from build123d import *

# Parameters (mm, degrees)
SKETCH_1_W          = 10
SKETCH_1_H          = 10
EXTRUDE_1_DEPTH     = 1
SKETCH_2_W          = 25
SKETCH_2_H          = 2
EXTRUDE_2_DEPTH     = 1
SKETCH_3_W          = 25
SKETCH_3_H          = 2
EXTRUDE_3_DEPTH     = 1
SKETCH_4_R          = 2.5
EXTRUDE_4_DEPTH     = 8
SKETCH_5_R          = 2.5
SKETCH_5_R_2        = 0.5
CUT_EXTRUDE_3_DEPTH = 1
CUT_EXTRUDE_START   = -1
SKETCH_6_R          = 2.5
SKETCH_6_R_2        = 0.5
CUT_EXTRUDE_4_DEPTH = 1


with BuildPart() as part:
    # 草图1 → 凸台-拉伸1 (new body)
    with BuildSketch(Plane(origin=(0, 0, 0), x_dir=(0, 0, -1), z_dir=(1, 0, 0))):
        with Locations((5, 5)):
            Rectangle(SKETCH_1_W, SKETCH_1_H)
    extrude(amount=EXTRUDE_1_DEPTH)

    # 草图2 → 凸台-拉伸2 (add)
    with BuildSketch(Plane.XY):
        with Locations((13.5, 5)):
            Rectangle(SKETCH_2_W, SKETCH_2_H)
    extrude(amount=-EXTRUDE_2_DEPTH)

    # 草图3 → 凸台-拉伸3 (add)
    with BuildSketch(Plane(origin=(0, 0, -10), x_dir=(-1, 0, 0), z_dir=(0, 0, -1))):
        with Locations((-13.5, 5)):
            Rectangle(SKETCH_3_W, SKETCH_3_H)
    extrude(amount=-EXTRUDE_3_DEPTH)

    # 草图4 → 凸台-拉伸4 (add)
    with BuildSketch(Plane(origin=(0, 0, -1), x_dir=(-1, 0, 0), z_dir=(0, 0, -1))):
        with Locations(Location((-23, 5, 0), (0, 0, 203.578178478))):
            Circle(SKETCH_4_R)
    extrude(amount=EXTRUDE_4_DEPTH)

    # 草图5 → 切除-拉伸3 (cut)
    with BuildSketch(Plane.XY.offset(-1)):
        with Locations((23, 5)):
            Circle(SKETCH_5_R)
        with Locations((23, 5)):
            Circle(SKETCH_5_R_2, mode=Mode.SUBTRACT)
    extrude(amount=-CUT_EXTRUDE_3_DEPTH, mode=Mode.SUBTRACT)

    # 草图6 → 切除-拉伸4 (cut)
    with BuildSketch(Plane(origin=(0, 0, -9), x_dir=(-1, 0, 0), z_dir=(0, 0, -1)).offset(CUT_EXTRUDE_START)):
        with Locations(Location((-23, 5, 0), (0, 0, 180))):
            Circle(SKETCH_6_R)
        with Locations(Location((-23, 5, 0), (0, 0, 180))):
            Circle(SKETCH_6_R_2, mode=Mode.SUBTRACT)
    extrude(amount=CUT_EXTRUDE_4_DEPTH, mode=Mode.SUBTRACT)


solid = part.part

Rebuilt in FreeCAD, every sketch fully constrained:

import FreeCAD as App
import Part
import Sketcher

V = App.Vector
Q = App.Units.Quantity

doc = App.newDocument("Part")
params = doc.addObject("Spreadsheet::Sheet", "Params")
for row, (alias, value) in enumerate([
    ("sketch1_width", "10 mm"),
    ("pad1_length", "1 mm"),
    ("sketch2_width", "25 mm"),
    ("sketch2_height", "2 mm"),
    ("pad2_length", "1 mm"),
    ("sketch3_width", "25 mm"),
    ("sketch3_height", "2 mm"),
    ("pad3_length", "1 mm"),
    ("sketch4_diameter", "5 mm"),
    ("pad4_length", "8 mm"),
    ("sketch5_diameter", "5 mm"),
    ("sketch5_diameter2", "1 mm"),
    ("pocket1_length", "1 mm"),
    ("sketch6_diameter", "5 mm"),
    ("sketch6_diameter2", "1 mm"),
    ("pocket2_length", "1 mm"),
], start=1):
    params.set(f"A{row}", alias)
    params.set(f"B{row}", "=" + value)
    params.setAlias(f"B{row}", alias)

body = doc.addObject("PartDesign::Body", "Body")

sketch1 = doc.addObject("Sketcher::SketchObject", "Sketch")
body.addObject(sketch1)
sketch1.AttachmentSupport = (doc.YZ_Plane, [""])
sketch1.MapMode = "FlatFace"
sketch1.addGeometry([
    Part.LineSegment(V(10, 0, 0), V(0, 0, 0)),
    Part.LineSegment(V(0, 0, 0), V(0, -10, 0)),
    Part.LineSegment(V(0, -10, 0), V(10, -10, 0)),
    Part.LineSegment(V(10, -10, 0), V(10, 0, 0)),
], False)
sketch1.addConstraint([
    Sketcher.Constraint("Coincident", 0, 2, 1, 1),
    Sketcher.Constraint("Coincident", 1, 2, 2, 1),
    Sketcher.Constraint("Coincident", 2, 2, 3, 1),
    Sketcher.Constraint("Coincident", 3, 2, 0, 1),
    Sketcher.Constraint("Horizontal", 0),
    Sketcher.Constraint("Vertical", 1),
    Sketcher.Constraint("Horizontal", 2),
    Sketcher.Constraint("Vertical", 3),
    Sketcher.Constraint("Coincident", 0, 2, -1, 1),
    Sketcher.Constraint("Equal", 2, 1),
    Sketcher.Constraint("DistanceX", 0, 2, 0, 1, Q("10 mm")),
])
sketch1.setExpression("Constraints[10]", "Params.sketch1_width")
pad1 = doc.addObject("PartDesign::Pad", "Pad")
body.addObject(pad1)
pad1.Profile = sketch1
pad1.setExpression("Length", "Params.pad1_length")

sketch2 = doc.addObject("Sketcher::SketchObject", "Sketch001")
body.addObject(sketch2)
sketch2.AttachmentSupport = (doc.XY_Plane, [""])
sketch2.MapMode = "FlatFace"
sketch2.addGeometry([
    Part.LineSegment(V(1, 6, 0), V(1, 4, 0)),
    Part.LineSegment(V(1, 4, 0), V(26, 4, 0)),
    Part.LineSegment(V(26, 4, 0), V(26, 6, 0)),
    Part.LineSegment(V(26, 6, 0), V(1, 6, 0)),
], False)
sketch2.addConstraint([
    Sketcher.Constraint("Coincident", 0, 2, 1, 1),
    Sketcher.Constraint("Coincident", 1, 2, 2, 1),
    Sketcher.Constraint("Coincident", 2, 2, 3, 1),
    Sketcher.Constraint("Coincident", 3, 2, 0, 1),
    Sketcher.Constraint("Vertical", 0),
    Sketcher.Constraint("Horizontal", 1),
    Sketcher.Constraint("Vertical", 2),
    Sketcher.Constraint("Horizontal", 3),
    Sketcher.Constraint("DistanceX", 1, 1, 1, 2, Q("25 mm")),
    Sketcher.Constraint("DistanceY", 0, 2, 0, 1, Q("2 mm")),
    Sketcher.Constraint("DistanceX", -1, 1, 0, 2, Q("1 mm")),
    Sketcher.Constraint("DistanceY", -1, 1, 0, 2, Q("4 mm")),
])
sketch2.setExpression("Constraints[8]", "Params.sketch2_width")
sketch2.setExpression("Constraints[9]", "Params.sketch2_height")
pad2 = doc.addObject("PartDesign::Pad", "Pad001")
body.addObject(pad2)
pad2.Profile = sketch2
pad2.setExpression("Length", "Params.pad2_length")
pad2.Reversed = True

sketch3 = doc.addObject("Sketcher::SketchObject", "Sketch002")
body.addObject(sketch3)
sketch3.AttachmentSupport = (doc.XY_Plane, [""])
sketch3.MapMode = "FlatFace"
sketch3.AttachmentOffset = App.Placement(V(0, 0, -10), App.Rotation())
sketch3.addGeometry([
    Part.LineSegment(V(26, 6, 0), V(26, 4, 0)),
    Part.LineSegment(V(26, 4, 0), V(1, 4, 0)),
    Part.LineSegment(V(1, 4, 0), V(1, 6, 0)),
    Part.LineSegment(V(1, 6, 0), V(26, 6, 0)),
], False)
sketch3.addConstraint([
    Sketcher.Constraint("Coincident", 0, 2, 1, 1),
    Sketcher.Constraint("Coincident", 1, 2, 2, 1),
    Sketcher.Constraint("Coincident", 2, 2, 3, 1),
    Sketcher.Constraint("Coincident", 3, 2, 0, 1),
    Sketcher.Constraint("Vertical", 0),
    Sketcher.Constraint("Horizontal", 1),
    Sketcher.Constraint("Vertical", 2),
    Sketcher.Constraint("Horizontal", 3),
    Sketcher.Constraint("DistanceX", 1, 2, 1, 1, Q("25 mm")),
    Sketcher.Constraint("DistanceY", 0, 2, 0, 1, Q("2 mm")),
    Sketcher.Constraint("DistanceX", -1, 1, 0, 2, Q("26 mm")),
    Sketcher.Constraint("DistanceY", -1, 1, 0, 2, Q("4 mm")),
])
sketch3.setExpression("Constraints[8]", "Params.sketch3_width")
sketch3.setExpression("Constraints[9]", "Params.sketch3_height")
pad3 = doc.addObject("PartDesign::Pad", "Pad002")
body.addObject(pad3)
pad3.Profile = sketch3
pad3.setExpression("Length", "Params.pad3_length")

sketch4 = doc.addObject("Sketcher::SketchObject", "Sketch003")
body.addObject(sketch4)
sketch4.AttachmentSupport = (doc.XY_Plane, [""])
sketch4.MapMode = "FlatFace"
sketch4.AttachmentOffset = App.Placement(V(0, 0, -1), App.Rotation())
sketch4.addGeometry(Part.Circle(V(23, 5, 0), V(0, 0, 1), 2.5), False)
sketch4.addConstraint([
    Sketcher.Constraint("Diameter", 0, Q("5 mm")),
    Sketcher.Constraint("DistanceX", -1, 1, 0, 3, Q("23 mm")),
    Sketcher.Constraint("DistanceY", -1, 1, 0, 3, Q("5 mm")),
])
sketch4.setExpression("Constraints[0]", "Params.sketch4_diameter")
pad4 = doc.addObject("PartDesign::Pad", "Pad003")
body.addObject(pad4)
pad4.Profile = sketch4
pad4.setExpression("Length", "Params.pad4_length")
pad4.Reversed = True

sketch5 = doc.addObject("Sketcher::SketchObject", "Sketch004")
body.addObject(sketch5)
sketch5.AttachmentSupport = (doc.XY_Plane, [""])
sketch5.MapMode = "FlatFace"
sketch5.AttachmentOffset = App.Placement(V(0, 0, -1), App.Rotation())
sketch5.addGeometry([
    Part.Circle(V(23, 5, 0), V(0, 0, 1), 2.5),
    Part.Circle(V(23, 5, 0), V(0, 0, 1), 0.5),
], False)
sketch5.addConstraint([
    Sketcher.Constraint("Coincident", 1, 3, 0, 3),
    Sketcher.Constraint("Diameter", 0, Q("5 mm")),
    Sketcher.Constraint("Diameter", 1, Q("1 mm")),
    Sketcher.Constraint("DistanceX", -1, 1, 0, 3, Q("23 mm")),
    Sketcher.Constraint("DistanceY", -1, 1, 0, 3, Q("5 mm")),
])
sketch5.setExpression("Constraints[1]", "Params.sketch5_diameter")
sketch5.setExpression("Constraints[2]", "Params.sketch5_diameter2")
pocket1 = doc.addObject("PartDesign::Pocket", "Pocket")
body.addObject(pocket1)
pocket1.Profile = sketch5
pocket1.setExpression("Length", "Params.pocket1_length")

sketch6 = doc.addObject("Sketcher::SketchObject", "Sketch005")
body.addObject(sketch6)
sketch6.AttachmentSupport = (doc.XY_Plane, [""])
sketch6.MapMode = "FlatFace"
sketch6.AttachmentOffset = App.Placement(V(0, 0, -8), App.Rotation())
sketch6.addGeometry([
    Part.Circle(V(23, 5, 0), V(0, 0, 1), 2.5),
    Part.Circle(V(23, 5, 0), V(0, 0, 1), 0.5),
], False)
sketch6.addConstraint([
    Sketcher.Constraint("Coincident", 1, 3, 0, 3),
    Sketcher.Constraint("Diameter", 0, Q("5 mm")),
    Sketcher.Constraint("Diameter", 1, Q("1 mm")),
    Sketcher.Constraint("DistanceX", -1, 1, 0, 3, Q("23 mm")),
    Sketcher.Constraint("DistanceY", -1, 1, 0, 3, Q("5 mm")),
])
sketch6.setExpression("Constraints[1]", "Params.sketch6_diameter")
sketch6.setExpression("Constraints[2]", "Params.sketch6_diameter2")
pocket2 = doc.addObject("PartDesign::Pocket", "Pocket001")
body.addObject(pocket2)
pocket2.Profile = sketch6
pocket2.setExpression("Length", "Params.pocket2_length")

doc.recompute()
